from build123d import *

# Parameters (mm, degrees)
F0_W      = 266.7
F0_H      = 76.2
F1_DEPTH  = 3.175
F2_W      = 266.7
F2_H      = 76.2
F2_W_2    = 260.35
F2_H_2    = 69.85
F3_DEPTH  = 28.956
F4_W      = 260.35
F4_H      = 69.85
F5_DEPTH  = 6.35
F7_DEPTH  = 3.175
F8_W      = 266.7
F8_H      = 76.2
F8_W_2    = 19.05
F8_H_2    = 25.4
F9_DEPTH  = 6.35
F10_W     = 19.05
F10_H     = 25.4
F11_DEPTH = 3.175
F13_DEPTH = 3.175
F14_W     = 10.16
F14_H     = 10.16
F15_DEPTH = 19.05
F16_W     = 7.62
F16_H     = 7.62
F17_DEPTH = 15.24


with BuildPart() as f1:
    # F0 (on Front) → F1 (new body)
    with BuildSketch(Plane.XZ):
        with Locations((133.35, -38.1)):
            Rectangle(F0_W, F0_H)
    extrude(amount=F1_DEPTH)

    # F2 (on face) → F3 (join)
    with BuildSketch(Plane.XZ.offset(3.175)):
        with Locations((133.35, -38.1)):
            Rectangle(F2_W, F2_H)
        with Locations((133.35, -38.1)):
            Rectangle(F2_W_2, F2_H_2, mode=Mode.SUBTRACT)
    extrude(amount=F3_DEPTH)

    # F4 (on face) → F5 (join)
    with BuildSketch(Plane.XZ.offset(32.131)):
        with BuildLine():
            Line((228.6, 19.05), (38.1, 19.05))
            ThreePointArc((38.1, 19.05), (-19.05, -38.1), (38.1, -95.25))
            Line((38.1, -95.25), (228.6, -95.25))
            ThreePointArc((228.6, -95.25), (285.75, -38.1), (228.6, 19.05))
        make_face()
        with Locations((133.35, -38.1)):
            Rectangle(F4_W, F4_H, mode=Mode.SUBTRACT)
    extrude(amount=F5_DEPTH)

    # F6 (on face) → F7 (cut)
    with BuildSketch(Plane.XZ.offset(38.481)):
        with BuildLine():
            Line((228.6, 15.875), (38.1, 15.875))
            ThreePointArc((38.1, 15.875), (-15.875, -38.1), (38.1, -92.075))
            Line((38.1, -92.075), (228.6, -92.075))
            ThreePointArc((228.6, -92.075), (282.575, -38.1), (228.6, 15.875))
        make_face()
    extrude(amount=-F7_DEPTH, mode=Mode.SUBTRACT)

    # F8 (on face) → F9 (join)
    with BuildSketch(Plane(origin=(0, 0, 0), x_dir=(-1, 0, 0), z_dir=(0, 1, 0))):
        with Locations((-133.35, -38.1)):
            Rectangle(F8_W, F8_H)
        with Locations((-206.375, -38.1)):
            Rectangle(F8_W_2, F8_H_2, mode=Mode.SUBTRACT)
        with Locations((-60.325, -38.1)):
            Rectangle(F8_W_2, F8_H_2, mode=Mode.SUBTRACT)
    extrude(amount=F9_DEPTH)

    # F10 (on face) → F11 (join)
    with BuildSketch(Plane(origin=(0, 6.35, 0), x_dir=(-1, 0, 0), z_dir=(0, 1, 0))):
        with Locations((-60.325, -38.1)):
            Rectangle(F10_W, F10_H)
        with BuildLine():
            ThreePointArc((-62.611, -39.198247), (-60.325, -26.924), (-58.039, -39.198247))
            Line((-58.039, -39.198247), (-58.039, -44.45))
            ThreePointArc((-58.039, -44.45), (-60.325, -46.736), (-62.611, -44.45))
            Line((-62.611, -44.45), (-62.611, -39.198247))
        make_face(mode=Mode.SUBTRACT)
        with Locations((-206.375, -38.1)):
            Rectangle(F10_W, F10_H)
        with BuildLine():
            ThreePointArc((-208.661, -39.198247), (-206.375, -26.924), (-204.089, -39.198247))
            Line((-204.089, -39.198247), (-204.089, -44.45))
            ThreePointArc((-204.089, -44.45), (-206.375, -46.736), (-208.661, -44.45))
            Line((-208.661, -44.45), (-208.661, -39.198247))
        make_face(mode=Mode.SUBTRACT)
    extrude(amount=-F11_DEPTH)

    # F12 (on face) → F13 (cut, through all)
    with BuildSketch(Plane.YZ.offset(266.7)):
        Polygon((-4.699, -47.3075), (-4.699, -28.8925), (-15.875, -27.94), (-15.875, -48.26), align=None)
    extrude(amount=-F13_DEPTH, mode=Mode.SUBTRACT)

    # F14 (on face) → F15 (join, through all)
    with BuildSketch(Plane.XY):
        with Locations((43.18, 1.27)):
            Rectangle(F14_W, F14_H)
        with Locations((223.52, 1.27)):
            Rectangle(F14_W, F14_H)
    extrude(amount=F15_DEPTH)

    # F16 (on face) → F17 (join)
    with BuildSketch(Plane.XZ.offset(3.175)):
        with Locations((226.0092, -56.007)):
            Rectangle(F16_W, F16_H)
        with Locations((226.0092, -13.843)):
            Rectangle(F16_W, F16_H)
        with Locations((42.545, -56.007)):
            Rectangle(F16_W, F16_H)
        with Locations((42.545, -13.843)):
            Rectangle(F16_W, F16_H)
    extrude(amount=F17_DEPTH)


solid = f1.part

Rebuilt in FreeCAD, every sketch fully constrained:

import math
import FreeCAD as App
import Part
import Sketcher
from FreeCAD import Vector
Q = App.Units.Quantity

doc = App.newDocument("Part")
body = doc.addObject("PartDesign::Body", "Body")

sketch1 = doc.addObject("Sketcher::SketchObject", "Sketch")
body.addObject(sketch1)
sketch1.AttachmentSupport = (doc.XZ_Plane, [""])
sketch1.MapMode = "FlatFace"
sketch1.addGeometry([
    Part.LineSegment(Vector(0, 0, 0), Vector(0, -76, 0)),
    Part.LineSegment(Vector(0, -76, 0), Vector(267, -76, 0)),
    Part.LineSegment(Vector(267, -76, 0), Vector(267, 0, 0)),
    Part.LineSegment(Vector(267, 0, 0), Vector(0, 0, 0)),
], False)
sketch1.addConstraint([
    Sketcher.Constraint("Coincident", 0, 2, 1, 1),
    Sketcher.Constraint("Coincident", 1, 2, 2, 1),
    Sketcher.Constraint("Coincident", 2, 2, 3, 1),
    Sketcher.Constraint("Coincident", 3, 2, 0, 1),
    Sketcher.Constraint("Vertical", 0),
    Sketcher.Constraint("Horizontal", 1),
    Sketcher.Constraint("Vertical", 2),
    Sketcher.Constraint("Horizontal", 3),
    Sketcher.Constraint("Coincident", 3, 2, -1, 1),
    Sketcher.Constraint("DistanceY", 0, 2, 0, 1, Q("3 in")),
    Sketcher.Constraint("DistanceX", 1, 1, 1, 2, Q("10.5 in")),
])
pad1 = doc.addObject("PartDesign::Pad", "Pad")
body.addObject(pad1)
pad1.Profile = sketch1
pad1.Length = Q("0.125 in")

sketch2 = doc.addObject("Sketcher::SketchObject", "Sketch001")
body.addObject(sketch2)
sketch2.AttachmentSupport = (doc.XZ_Plane, [""])
sketch2.MapMode = "FlatFace"
sketch2.AttachmentOffset = App.Placement(Vector(0, 0, 0.125 * 25.4), App.Rotation())
sketch2.addGeometry([
    Part.LineSegment(Vector(0, 0, 0), Vector(0, -76, 0)),
    Part.LineSegment(Vector(0, -76, 0), Vector(267, -76, 0)),
    Part.LineSegment(Vector(267, -76, 0), Vector(267, 0, 0)),
    Part.LineSegment(Vector(267, 0, 0), Vector(0, 0, 0)),
    Part.LineSegment(Vector(264, -73, 0), Vector(3, -73, 0)),
    Part.LineSegment(Vector(3, -73, 0), Vector(3, -3, 0)),
    Part.LineSegment(Vector(3, -3, 0), Vector(264, -3, 0)),
    Part.LineSegment(Vector(264, -3, 0), Vector(264, -73, 0)),
], False)
sketch2.addConstraint([
    Sketcher.Constraint("Coincident", 0, 2, 1, 1),
    Sketcher.Constraint("Coincident", 1, 2, 2, 1),
    Sketcher.Constraint("Coincident", 2, 2, 3, 1),
    Sketcher.Constraint("Coincident", 3, 2, 0, 1),
    Sketcher.Constraint("Coincident", 4, 2, 5, 1),
    Sketcher.Constraint("Coincident", 5, 2, 6, 1),
    Sketcher.Constraint("Coincident", 6, 2, 7, 1),
    Sketcher.Constraint("Coincident", 7, 2, 4, 1),
    Sketcher.Constraint("Vertical", 0),
    Sketcher.Constraint("Horizontal", 1),
    Sketcher.Constraint("Vertical", 2),
    Sketcher.Constraint("Horizontal", 3),
    Sketcher.Constraint("Horizontal", 4),
    Sketcher.Constraint("Vertical", 5),
    Sketcher.Constraint("Horizontal", 6),
    Sketcher.Constraint("Vertical", 7),
    Sketcher.Constraint("Coincident", 3, 2, -1, 1),
    Sketcher.Constraint("DistanceY", 0, 2, 0, 1, Q("3 in")),
    Sketcher.Constraint("DistanceX", 1, 1, 1, 2, Q("10.5 in")),
    Sketcher.Constraint("DistanceX", 4, 2, 4, 1, Q("10.25 in")),
    Sketcher.Constraint("DistanceY", 5, 1, 5, 2, Q("2.75 in")),
    Sketcher.Constraint("DistanceX", -1, 1, 4, 2, Q("0.125 in")),
    Sketcher.Constraint("DistanceY", 4, 2, -1, 1, Q("2.875 in")),
])
pad2 = doc.addObject("PartDesign::Pad", "Pad001")
body.addObject(pad2)
pad2.Profile = sketch2
pad2.Length = Q("1.14 in")

sketch3 = doc.addObject("Sketcher::SketchObject", "Sketch002")
body.addObject(sketch3)
sketch3.AttachmentSupport = (doc.XZ_Plane, [""])
sketch3.MapMode = "FlatFace"
sketch3.AttachmentOffset = App.Placement(Vector(0, 0, 1.265 * 25.4), App.Rotation())
sketch3.addGeometry([
    Part.LineSegment(Vector(229, 19, 0), Vector(38, 19, 0)),
    Part.ArcOfCircle(Part.Circle(Vector(38, -38, 0), Vector(0, 0, 1), 57), math.radians(90), math.radians(270)),
    Part.LineSegment(Vector(38, -95, 0), Vector(229, -95, 0)),
    Part.ArcOfCircle(Part.Circle(Vector(229, -38, 0), Vector(0, 0, 1), 57), math.radians(-90), math.radians(90)),
    Part.LineSegment(Vector(264, -73, 0), Vector(3, -73, 0)),
    Part.LineSegment(Vector(3, -73, 0), Vector(3, -3, 0)),
    Part.LineSegment(Vector(3, -3, 0), Vector(264, -3, 0)),
    Part.LineSegment(Vector(264, -3, 0), Vector(264, -73, 0)),
], False)
sketch3.addConstraint([
    Sketcher.Constraint("Tangent", 0, 2, 1, 1),
    Sketcher.Constraint("Tangent", 1, 2, 2, 1),
    Sketcher.Constraint("Tangent", 2, 2, 3, 1),
    Sketcher.Constraint("Tangent", 3, 2, 0, 1),
    Sketcher.Constraint("Coincident", 4, 2, 5, 1),
    Sketcher.Constraint("Coincident", 5, 2, 6, 1),
    Sketcher.Constraint("Coincident", 6, 2, 7, 1),
    Sketcher.Constraint("Coincident", 7, 2, 4, 1),
    Sketcher.Constraint("Horizontal", 0),
    Sketcher.Constraint("Horizontal", 2),
    Sketcher.Constraint("Horizontal", 4),
    Sketcher.Constraint("Vertical", 5),
    Sketcher.Constraint("Horizontal", 6),
    Sketcher.Constraint("Vertical", 7),
    Sketcher.Constraint("Radius", 1, Q("2.25 in")),
    Sketcher.Constraint("DistanceX", 0, 2, 0, 1, Q("7.5 in")),
    Sketcher.Constraint("DistanceX", -1, 1, 3, 3, Q("9 in")),
    Sketcher.Constraint("DistanceX", 4, 2, 4, 1, Q("10.25 in")),
    Sketcher.Constraint("DistanceY", 5, 1, 5, 2, Q("2.75 in")),
    Sketcher.Constraint("DistanceY", 1, 3, -1, 1, Q("1.5 in")),
    Sketcher.Constraint("DistanceX", -1, 1, 4, 2, Q("0.125 in")),
    Sketcher.Constraint("DistanceY", 4, 2, -1, 1, Q("2.875 in")),
])
pad3 = doc.addObject("PartDesign::Pad", "Pad002")
body.addObject(pad3)
pad3.Profile = sketch3
pad3.Length = Q("0.25 in")

sketch4 = doc.addObject("Sketcher::SketchObject", "Sketch003")
body.addObject(sketch4)
sketch4.AttachmentSupport = (doc.XZ_Plane, [""])
sketch4.MapMode = "FlatFace"
sketch4.AttachmentOffset = App.Placement(Vector(0, 0, 1.515 * 25.4), App.Rotation())
sketch4.addGeometry([
    Part.LineSegment(Vector(229, 16, 0), Vector(38, 16, 0)),
    Part.ArcOfCircle(Part.Circle(Vector(38, -38, 0), Vector(0, 0, 1), 54), math.radians(90), math.radians(270)),
    Part.LineSegment(Vector(38, -92, 0), Vector(229, -92, 0)),
    Part.ArcOfCircle(Part.Circle(Vector(229, -38, 0), Vector(0, 0, 1), 54), math.radians(-90), math.radians(90)),
], False)
sketch4.addConstraint([
    Sketcher.Constraint("Tangent", 0, 2, 1, 1),
    Sketcher.Constraint("Tangent", 1, 2, 2, 1),
    Sketcher.Constraint("Tangent", 2, 2, 3, 1),
    Sketcher.Constraint("Tangent", 3, 2, 0, 1),
    Sketcher.Constraint("Horizontal", 0),
    Sketcher.Constraint("Horizontal", 2),
    Sketcher.Constraint("DistanceX", 0, 2, 0, 1, Q("7.5 in")),
    Sketcher.Constraint("DistanceX", -1, 1, 3, 3, Q("9 in")),
    Sketcher.Constraint("Radius", 1, Q("2.125 in")),
    Sketcher.Constraint("DistanceY", 1, 3, -1, 1, Q("1.5 in")),
])
pocket1 = doc.addObject("PartDesign::Pocket", "Pocket")
body.addObject(pocket1)
pocket1.Profile = sketch4
pocket1.Length = Q("0.125 in")

sketch5 = doc.addObject("Sketcher::SketchObject", "Sketch004")
body.addObject(sketch5)
sketch5.AttachmentSupport = (doc.XZ_Plane, [""])
sketch5.MapMode = "FlatFace"
sketch5.addGeometry([
    Part.LineSegment(Vector(267, 0, 0), Vector(267, -76, 0)),
    Part.LineSegment(Vector(267, -76, 0), Vector(0, -76, 0)),
    Part.LineSegment(Vector(0, -76, 0), Vector(0, 0, 0)),
    Part.LineSegment(Vector(0, 0, 0), Vector(267, 0, 0)),
    Part.LineSegment(Vector(197, -51, 0), Vector(216, -51, 0)),
    Part.LineSegment(Vector(216, -51, 0), Vector(216, -25, 0)),
    Part.LineSegment(Vector(216, -25, 0), Vector(197, -25, 0)),
    Part.LineSegment(Vector(197, -25, 0), Vector(197, -51, 0)),
    Part.LineSegment(Vector(51, -51, 0), Vector(70, -51, 0)),
    Part.LineSegment(Vector(70, -51, 0), Vector(70, -25, 0)),
    Part.LineSegment(Vector(70, -25, 0), Vector(51, -25, 0)),
    Part.LineSegment(Vector(51, -25, 0), Vector(51, -51, 0)),
], False)
sketch5.addConstraint([
    Sketcher.Constraint("Coincident", 0, 2, 1, 1),
    Sketcher.Constraint("Coincident", 1, 2, 2, 1),
    Sketcher.Constraint("Coincident", 2, 2, 3, 1),
    Sketcher.Constraint("Coincident", 3, 2, 0, 1),
    Sketcher.Constraint("Coincident", 4, 2, 5, 1),
    Sketcher.Constraint("Coincident", 5, 2, 6, 1),
    Sketcher.Constraint("Coincident", 6, 2, 7, 1),
    Sketcher.Constraint("Coincident", 7, 2, 4, 1),
    Sketcher.Constraint("Coincident", 8, 2, 9, 1),
    Sketcher.Constraint("Coincident", 9, 2, 10, 1),
    Sketcher.Constraint("Coincident", 10, 2, 11, 1),
    Sketcher.Constraint("Coincident", 11, 2, 8, 1),
    Sketcher.Constraint("Vertical", 0),
    Sketcher.Constraint("Horizontal", 1),
    Sketcher.Constraint("Vertical", 2),
    Sketcher.Constraint("Horizontal", 3),
    Sketcher.Constraint("Horizontal", 4),
    Sketcher.Constraint("Vertical", 5),
    Sketcher.Constraint("Horizontal", 6),
    Sketcher.Constraint("Vertical", 7),
    Sketcher.Constraint("Horizontal", 8),
    Sketcher.Constraint("Vertical", 9),
    Sketcher.Constraint("Horizontal", 10),
    Sketcher.Constraint("Vertical", 11),
    Sketcher.Constraint("Coincident", 2, 2, -1, 1),
    Sketcher.Constraint("Horizontal", 7, 2, 8, 2),
    Sketcher.Constraint("Horizontal", 6, 2, 9, 2),
    Sketcher.Constraint("Equal", 6, 8),
    Sketcher.Constraint("DistanceY", 0, 2, 0, 1, Q("3 in")),
    Sketcher.Constraint("DistanceY", 5, 1, 5, 2, Q("1 in")),
    Sketcher.Constraint("DistanceX", 1, 2, 1, 1, Q("10.5 in")),
    Sketcher.Constraint("DistanceY", 4, 2, -1, 1, Q("2 in")),
    Sketcher.Constraint("DistanceX", -1, 1, 10, 2, Q("2 in")),
    Sketcher.Constraint("DistanceX", 4, 2, 0, 2, Q("2 in")),
    Sketcher.Constraint("DistanceX", 8, 2, 7, 2, Q("5 in")),
])
pad4 = doc.addObject("PartDesign::Pad", "Pad003")
body.addObject(pad4)
pad4.Profile = sketch5
pad4.Length = Q("0.25 in")
pad4.Reversed = True

sketch6 = doc.addObject("Sketcher::SketchObject", "Sketch005")
body.addObject(sketch6)
sketch6.AttachmentSupport = (doc.XZ_Plane, [""])
sketch6.MapMode = "FlatFace"
sketch6.AttachmentOffset = App.Placement(Vector(0, 0, -0.25 * 25.4), App.Rotation())
sketch6.addGeometry([
    Part.LineSegment(Vector(69.8, -25.4, 0), Vector(69.8, -50.8, 0)),
    Part.LineSegment(Vector(69.8, -50.8, 0), Vector(50.8, -50.8, 0)),
    Part.LineSegment(Vector(50.8, -50.8, 0), Vector(50.8, -25.4, 0)),
    Part.LineSegment(Vector(50.8, -25.4, 0), Vector(69.8, -25.4, 0)),
    Part.LineSegment(Vector(62.6, -44.5, 0), Vector(62.6, -39.2, 0)),
    Part.ArcOfCircle(Part.Circle(Vector(60.3, -33.3, 0), Vector(0, 0, 1), 6.3), math.radians(-69), math.radians(249)),
    Part.LineSegment(Vector(58, -39.2, 0), Vector(58, -44.5, 0)),
    Part.ArcOfCircle(Part.Circle(Vector(60.3, -44.5, 0), Vector(0, 0, 1), 2.3), math.radians(180), math.radians(360)),
    Part.LineSegment(Vector(215.9, -25.4, 0), Vector(215.9, -50.8, 0)),
    Part.LineSegment(Vector(215.9, -50.8, 0), Vector(196.8, -50.8, 0)),
    Part.LineSegment(Vector(196.8, -50.8, 0), Vector(196.8, -25.4, 0)),
    Part.LineSegment(Vector(196.8, -25.4, 0), Vector(215.9, -25.4, 0)),
    Part.LineSegment(Vector(208.7, -44.5, 0), Vector(208.7, -39.2, 0)),
    Part.ArcOfCircle(Part.Circle(Vector(206.4, -33.3, 0), Vector(0, 0, 1), 6.3), math.radians(-69), math.radians(249)),
    Part.LineSegment(Vector(204.1, -39.2, 0), Vector(204.1, -44.5, 0)),
    Part.ArcOfCircle(Part.Circle(Vector(206.4, -44.5, 0), Vector(0, 0, 1), 2.3), math.radians(180), math.radians(360)),
], False)
sketch6.addConstraint([
    Sketcher.Constraint("Coincident", 0, 2, 1, 1),
    Sketcher.Constraint("Coincident", 1, 2, 2, 1),
    Sketcher.Constraint("Coincident", 2, 2, 3, 1),
    Sketcher.Constraint("Coincident", 3, 2, 0, 1),
    Sketcher.Constraint("Coincident", 4, 2, 5, 1),
    Sketcher.Constraint("Coincident", 5, 2, 6, 1),
    Sketcher.Constraint("Tangent", 6, 2, 7, 1),
    Sketcher.Constraint("Tangent", 7, 2, 4, 1),
    Sketcher.Constraint("Coincident", 8, 2, 9, 1),
    Sketcher.Constraint("Coincident", 9, 2, 10, 1),
    Sketcher.Constraint("Coincident", 10, 2, 11, 1),
    Sketcher.Constraint("Coincident", 11, 2, 8, 1),
    Sketcher.Constraint("Coincident", 12, 2, 13, 1),
    Sketcher.Constraint("Coincident", 13, 2, 14, 1),
    Sketcher.Constraint("Tangent", 14, 2, 15, 1),
    Sketcher.Constraint("Tangent", 15, 2, 12, 1),
    Sketcher.Constraint("Vertical", 0),
    Sketcher.Constraint("Horizontal", 1),
    Sketcher.Constraint("Vertical", 2),
    Sketcher.Constraint("Horizontal", 3),
    Sketcher.Constraint("Vertical", 4),
    Sketcher.Constraint("Vertical", 6),
    Sketcher.Constraint("Vertical", 8),
    Sketcher.Constraint("Horizontal", 9),
    Sketcher.Constraint("Vertical", 10),
    Sketcher.Constraint("Horizontal", 11),
    Sketcher.Constraint("Vertical", 12),
    Sketcher.Constraint("Vertical", 14),
    Sketcher.Constraint("Equal", 5, 13),
    Sketcher.Constraint("Equal", 7, 15),
    Sketcher.Constraint("Horizontal", 5, 3, 13, 3),
    Sketcher.Constraint("Horizontal", 7, 3, 15, 3),
    Sketcher.Constraint("Horizontal", 4, 2, 5, 2),
    Sketcher.Constraint("Horizontal", 1, 2, 8, 2),
    Sketcher.Constraint("Horizontal", 3, 2, 10, 2),
    Sketcher.Constraint("Horizontal", 5, 2, 12, 2),
    Sketcher.Constraint("Equal", 3, 9),
    Sketcher.Constraint("DistanceY", 0, 2, 0, 1, Q("1 in")),
    Sketcher.Constraint("Radius", 5, Q("0.25 in")),
    Sketcher.Constraint("Radius", 7, Q("0.09 in")),
    Sketcher.Constraint("DistanceY", 0, 2, -1, 1, Q("2 in")),
    Sketcher.Constraint("DistanceX", -1, 1, 1, 2, Q("2 in")),
    Sketcher.Constraint("DistanceX", 0, 2, 9, 2, Q("5 in")),
    Sketcher.Constraint("DistanceX", 1, 2, 1, 1, Q("0.75 in")),
    Sketcher.Constraint("DistanceY", 5, 3, -1, 1, Q("1.31 in")),
    Sketcher.Constraint("DistanceY", 7, 3, -1, 1, Q("1.75 in")),
    Sketcher.Constraint("DistanceX", 5, 3, 13, 3, Q("5.75 in")),
    Sketcher.Constraint("DistanceX", -1, 1, 5, 3, Q("2.375 in")),
])
pad5 = doc.addObject("PartDesign::Pad", "Pad004")
body.addObject(pad5)
pad5.Profile = sketch6
pad5.Length = Q("0.125 in")

sketch7 = doc.addObject("Sketcher::SketchObject", "Sketch006")
body.addObject(sketch7)
sketch7.AttachmentSupport = (doc.YZ_Plane, [""])
sketch7.MapMode = "FlatFace"
sketch7.AttachmentOffset = App.Placement(Vector(0, 0, 10.5 * 25.4), App.Rotation())
sketch7.addGeometry([
    Part.LineSegment(Vector(-5, -47, 0), Vector(-5, -29, 0)),
    Part.LineSegment(Vector(-5, -29, 0), Vector(-16, -28, 0)),
    Part.LineSegment(Vector(-16, -28, 0), Vector(-16, -48, 0)),
    Part.LineSegment(Vector(-16, -48, 0), Vector(-5, -47, 0)),
], False)
sketch7.addConstraint([
    Sketcher.Constraint("Coincident", 0, 2, 1, 1),
    Sketcher.Constraint("Coincident", 1, 2, 2, 1),
    Sketcher.Constraint("Coincident", 2, 2, 3, 1),
    Sketcher.Constraint("Coincident", 3, 2, 0, 1),
    Sketcher.Constraint("Vertical", 0),
    Sketcher.Constraint("Vertical", 2),
    Sketcher.Constraint("Equal", 1, 3),
    Sketcher.Constraint("DistanceY", 2, 2, 2, 1, Q("0.8 in")),
    Sketcher.Constraint("DistanceY", 1, 2, -1, 1, Q("1.1 in")),
    Sketcher.Constraint("DistanceY", 0, 1, 0, 2, Q("0.725 in")),
    Sketcher.Constraint("DistanceX", 1, 2, 0, 2, Q("0.44 in")),
    Sketcher.Constraint("DistanceX", 0, 2, -1, 1, Q("0.185 in")),
])
pocket2 = doc.addObject("PartDesign::Pocket", "Pocket001")
body.addObject(pocket2)
pocket2.Profile = sketch7
pocket2.Length = Q("0.125 in")

sketch8 = doc.addObject("Sketcher::SketchObject", "Sketch007")
body.addObject(sketch8)
sketch8.AttachmentSupport = (doc.XY_Plane, [""])
sketch8.MapMode = "FlatFace"
sketch8.addGeometry([
    Part.LineSegment(Vector(38, 6, 0), Vector(38, -4, 0)),
    Part.LineSegment(Vector(38, -4, 0), Vector(48, -4, 0)),
    Part.LineSegment(Vector(48, -4, 0), Vector(48, 6, 0)),
    Part.LineSegment(Vector(48, 6, 0), Vector(38, 6, 0)),
    Part.LineSegment(Vector(218, 6, 0), Vector(218, -4, 0)),
    Part.LineSegment(Vector(218, -4, 0), Vector(229, -4, 0)),
    Part.LineSegment(Vector(229, -4, 0), Vector(229, 6, 0)),
    Part.LineSegment(Vector(229, 6, 0), Vector(218, 6, 0)),
], False)
sketch8.addConstraint([
    Sketcher.Constraint("Coincident", 0, 2, 1, 1),
    Sketcher.Constraint("Coincident", 1, 2, 2, 1),
    Sketcher.Constraint("Coincident", 2, 2, 3, 1),
    Sketcher.Constraint("Coincident", 3, 2, 0, 1),
    Sketcher.Constraint("Coincident", 4, 2, 5, 1),
    Sketcher.Constraint("Coincident", 5, 2, 6, 1),
    Sketcher.Constraint("Coincident", 6, 2, 7, 1),
    Sketcher.Constraint("Coincident", 7, 2, 4, 1),
    Sketcher.Constraint("Vertical", 0),
    Sketcher.Constraint("Horizontal", 1),
    Sketcher.Constraint("Vertical", 2),
    Sketcher.Constraint("Horizontal", 3),
    Sketcher.Constraint("Vertical", 4),
    Sketcher.Constraint("Horizontal", 5),
    Sketcher.Constraint("Vertical", 6),
    Sketcher.Constraint("Horizontal", 7),
    Sketcher.Constraint("Horizontal", 1, 2, 4, 2),
    Sketcher.Constraint("Horizontal", 3, 2, 6, 2),
    Sketcher.Constraint("Equal", 3, 5),
    Sketcher.Constraint("Equal", 7, 0),
    Sketcher.Constraint("DistanceX", 1, 1, 1, 2, Q("0.4 in")),
    Sketcher.Constraint("DistanceX", -1, 1, 5, 2, Q("9 in")),
    Sketcher.Constraint("DistanceX", -1, 1, 0, 2, Q("1.5 in")),
    Sketcher.Constraint("DistanceY", 0, 2, -1, 1, Q("0.15 in")),
])
pad6 = doc.addObject("PartDesign::Pad", "Pad005")
body.addObject(pad6)
pad6.Profile = sketch8
pad6.Length = Q("0.75 in")

sketch9 = doc.addObject("Sketcher::SketchObject", "Sketch008")
body.addObject(sketch9)
sketch9.AttachmentSupport = (doc.XZ_Plane, [""])
sketch9.MapMode = "FlatFace"
sketch9.AttachmentOffset = App.Placement(Vector(0, 0, 0.125 * 25.4), App.Rotation())
sketch9.addGeometry([
    Part.LineSegment(Vector(222, -52, 0), Vector(222, -60, 0)),
    Part.LineSegment(Vector(222, -60, 0), Vector(230, -60, 0)),
    Part.LineSegment(Vector(230, -60, 0), Vector(230, -52, 0)),
    Part.LineSegment(Vector(230, -52, 0), Vector(222, -52, 0)),
    Part.LineSegment(Vector(222, -10, 0), Vector(222, -18, 0)),
    Part.LineSegment(Vector(222, -18, 0), Vector(230, -18, 0)),
    Part.LineSegment(Vector(230, -18, 0), Vector(230, -10, 0)),
    Part.LineSegment(Vector(230, -10, 0), Vector(222, -10, 0)),
    Part.LineSegment(Vector(39, -52, 0), Vector(39, -60, 0)),
    Part.LineSegment(Vector(39, -60, 0), Vector(46, -60, 0)),
    Part.LineSegment(Vector(46, -60, 0), Vector(46, -52, 0)),
    Part.LineSegment(Vector(46, -52, 0), Vector(39, -52, 0)),
    Part.LineSegment(Vector(39, -10, 0), Vector(39, -18, 0)),
    Part.LineSegment(Vector(39, -18, 0), Vector(46, -18, 0)),
    Part.LineSegment(Vector(46, -18, 0), Vector(46, -10, 0)),
    Part.LineSegment(Vector(46, -10, 0), Vector(39, -10, 0)),
], False)
sketch9.addConstraint([
    Sketcher.Constraint("Coincident", 0, 2, 1, 1),
    Sketcher.Constraint("Coincident", 1, 2, 2, 1),
    Sketcher.Constraint("Coincident", 2, 2, 3, 1),
    Sketcher.Constraint("Coincident", 3, 2, 0, 1),
    Sketcher.Constraint("Coincident", 4, 2, 5, 1),
    Sketcher.Constraint("Coincident", 5, 2, 6, 1),
    Sketcher.Constraint("Coincident", 6, 2, 7, 1),
    Sketcher.Constraint("Coincident", 7, 2, 4, 1),
    Sketcher.Constraint("Coincident", 8, 2, 9, 1),
    Sketcher.Constraint("Coincident", 9, 2, 10, 1),
    Sketcher.Constraint("Coincident", 10, 2, 11, 1),
    Sketcher.Constraint("Coincident", 11, 2, 8, 1),
    Sketcher.Constraint("Coincident", 12, 2, 13, 1),
    Sketcher.Constraint("Coincident", 13, 2, 14, 1),
    Sketcher.Constraint("Coincident", 14, 2, 15, 1),
    Sketcher.Constraint("Coincident", 15, 2, 12, 1),
    Sketcher.Constraint("Vertical", 0),
    Sketcher.Constraint("Horizontal", 1),
    Sketcher.Constraint("Vertical", 2),
    Sketcher.Constraint("Horizontal", 3),
    Sketcher.Constraint("Vertical", 4),
    Sketcher.Constraint("Horizontal", 5),
    Sketcher.Constraint("Vertical", 6),
    Sketcher.Constraint("Horizontal", 7),
    Sketcher.Constraint("Vertical", 8),
    Sketcher.Constraint("Horizontal", 9),
    Sketcher.Constraint("Vertical", 10),
    Sketcher.Constraint("Horizontal", 11),
    Sketcher.Constraint("Vertical", 12),
    Sketcher.Constraint("Horizontal", 13),
    Sketcher.Constraint("Vertical", 14),
    Sketcher.Constraint("Horizontal", 15),
    Sketcher.Constraint("Horizontal", 1, 2, 8, 2),
    Sketcher.Constraint("Horizontal", 3, 2, 10, 2),
    Sketcher.Constraint("Horizontal", 5, 2, 12, 2),
    Sketcher.Constraint("Horizontal", 7, 2, 14, 2),
    Sketcher.Constraint("Vertical", 3, 2, 4, 2),
    Sketcher.Constraint("Vertical", 2, 2, 5, 2),
    Sketcher.Constraint("Vertical", 11, 2, 12, 2),
    Sketcher.Constraint("Vertical", 10, 2, 13, 2),
    Sketcher.Constraint("Equal", 7, 9),
    Sketcher.Constraint("Equal", 15, 0),
    Sketcher.Constraint("Equal", 2, 4),
    Sketcher.Constraint("DistanceX", 1, 1, 1, 2, Q("0.3 in")),
    Sketcher.Constraint("DistanceY", 3, 2, 4, 2, Q("1.36 in")),
    Sketcher.Constraint("DistanceX", -1, 1, 0, 2, Q("8.748 in")),
    Sketcher.Constraint("DistanceY", 0, 2, -1, 1, Q("2.355 in")),
    Sketcher.Constraint("DistanceX", -1, 1, 8, 2, Q("1.525 in")),
])
pad7 = doc.addObject("PartDesign::Pad", "Pad006")
body.addObject(pad7)
pad7.Profile = sketch9
pad7.Length = Q("0.6 in")

doc.recompute()
